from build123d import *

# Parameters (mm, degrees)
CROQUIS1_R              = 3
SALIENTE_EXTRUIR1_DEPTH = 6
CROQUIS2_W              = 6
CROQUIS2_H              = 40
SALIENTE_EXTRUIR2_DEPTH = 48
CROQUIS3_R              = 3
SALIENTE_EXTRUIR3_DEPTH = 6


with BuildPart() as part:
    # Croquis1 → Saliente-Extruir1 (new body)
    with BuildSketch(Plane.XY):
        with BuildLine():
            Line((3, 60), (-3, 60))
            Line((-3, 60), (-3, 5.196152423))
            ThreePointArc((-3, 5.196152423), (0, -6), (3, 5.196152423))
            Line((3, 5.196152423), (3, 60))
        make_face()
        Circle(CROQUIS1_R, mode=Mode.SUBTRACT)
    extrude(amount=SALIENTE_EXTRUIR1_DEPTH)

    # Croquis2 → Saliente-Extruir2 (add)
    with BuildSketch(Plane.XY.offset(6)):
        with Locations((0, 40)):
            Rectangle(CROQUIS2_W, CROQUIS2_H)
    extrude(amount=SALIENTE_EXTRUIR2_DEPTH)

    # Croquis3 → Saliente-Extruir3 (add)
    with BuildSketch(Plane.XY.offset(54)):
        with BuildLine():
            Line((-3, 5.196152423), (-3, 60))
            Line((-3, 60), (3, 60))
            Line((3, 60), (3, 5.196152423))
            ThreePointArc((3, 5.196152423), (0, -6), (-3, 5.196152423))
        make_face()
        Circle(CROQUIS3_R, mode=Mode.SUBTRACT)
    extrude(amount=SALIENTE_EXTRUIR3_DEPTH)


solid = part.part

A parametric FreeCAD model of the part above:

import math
import FreeCAD as App
import Part
import Sketcher

doc = App.newDocument("Part")
body = doc.addObject("PartDesign::Body", "Body")

sketch1 = body.newObject("Sketcher::SketchObject", "Sketch")
sketch1.AttachmentSupport = (doc.getObject("XY_Plane"), [""])
sketch1.MapMode = "FlatFace"
sketch1.addGeometry(Part.LineSegment(App.Vector(3, 60, 0), App.Vector(-3, 60, 0)), False)
sketch1.addGeometry(Part.LineSegment(App.Vector(-3, 60, 0), App.Vector(-3, 5.196152, 0)), False)
sketch1.addGeometry(Part.ArcOfCircle(Part.Circle(App.Vector(0, 0, 0), App.Vector(0, 0, 1), 6), math.radians(120), math.radians(420)), False)
sketch1.addGeometry(Part.LineSegment(App.Vector(3, 5.196152, 0), App.Vector(3, 60, 0)), False)
sketch1.addGeometry(Part.Circle(App.Vector(0, 0, 0), App.Vector(0, 0, 1), 3), False)
sketch1.addConstraint(Sketcher.Constraint("Coincident", 0, 2, 1, 1))
sketch1.addConstraint(Sketcher.Constraint("Coincident", 1, 2, 2, 1))
sketch1.addConstraint(Sketcher.Constraint("Coincident", 2, 2, 3, 1))
sketch1.addConstraint(Sketcher.Constraint("Coincident", 3, 2, 0, 1))
sketch1.addConstraint(Sketcher.Constraint("Horizontal", 0))
sketch1.addConstraint(Sketcher.Constraint("Vertical", 1))
sketch1.addConstraint(Sketcher.Constraint("Vertical", 3))
sketch1.addConstraint(Sketcher.Constraint("Coincident", 2, 3, -1, 1))
sketch1.addConstraint(Sketcher.Constraint("Coincident", 4, 3, -1, 1))
sketch1.addConstraint(Sketcher.Constraint("Horizontal", 1, 2, 2, 2))
sketch1.addConstraint(Sketcher.Constraint("Diameter", 4, 6.0))
sketch1.addConstraint(Sketcher.Constraint("Radius", 2, 6.0))
sketch1.addConstraint(Sketcher.Constraint("DistanceX", 0, 2, 0, 1, 6.0))
sketch1.addConstraint(Sketcher.Constraint("DistanceY", -1, 1, 0, 2, 60.0))
pad1 = body.newObject("PartDesign::Pad", "Pad")
pad1.Profile = sketch1
pad1.Length = 6

sketch2 = body.newObject("Sketcher::SketchObject", "Sketch001")
sketch2.AttachmentSupport = (doc.getObject("XY_Plane"), [""])
sketch2.MapMode = "FlatFace"
sketch2.AttachmentOffset = App.Placement(App.Vector(0, 0, 6), App.Rotation())
sketch2.addGeometry(Part.LineSegment(App.Vector(-3, 60, 0), App.Vector(-3, 20, 0)), False)
sketch2.addGeometry(Part.LineSegment(App.Vector(-3, 20, 0), App.Vector(3, 20, 0)), False)
sketch2.addGeometry(Part.LineSegment(App.Vector(3, 20, 0), App.Vector(3, 60, 0)), False)
sketch2.addGeometry(Part.LineSegment(App.Vector(3, 60, 0), App.Vector(-3, 60, 0)), False)
sketch2.addConstraint(Sketcher.Constraint("Coincident", 0, 2, 1, 1))
sketch2.addConstraint(Sketcher.Constraint("Coincident", 1, 2, 2, 1))
sketch2.addConstraint(Sketcher.Constraint("Coincident", 2, 2, 3, 1))
sketch2.addConstraint(Sketcher.Constraint("Coincident", 3, 2, 0, 1))
sketch2.addConstraint(Sketcher.Constraint("Vertical", 0))
sketch2.addConstraint(Sketcher.Constraint("Horizontal", 1))
sketch2.addConstraint(Sketcher.Constraint("Vertical", 2))
sketch2.addConstraint(Sketcher.Constraint("Horizontal", 3))
sketch2.addConstraint(Sketcher.Constraint("DistanceX", 1, 1, 1, 2, 6.0))
sketch2.addConstraint(Sketcher.Constraint("DistanceY", 0, 2, 0, 1, 40.0))
sketch2.addConstraint(Sketcher.Constraint("DistanceX", 0, 2, -1, 1, 3.0))
sketch2.addConstraint(Sketcher.Constraint("DistanceY", -1, 1, 0, 2, 20.0))
pad2 = body.newObject("PartDesign::Pad", "Pad001")
pad2.Profile = sketch2
pad2.Length = 48

sketch3 = body.newObject("Sketcher::SketchObject", "Sketch002")
sketch3.AttachmentSupport = (doc.getObject("XY_Plane"), [""])
sketch3.MapMode = "FlatFace"
sketch3.AttachmentOffset = App.Placement(App.Vector(0, 0, 54), App.Rotation())
sketch3.addGeometry(Part.LineSegment(App.Vector(-3, 60, 0), App.Vector(-3, 5.196152, 0)), False)
sketch3.addGeometry(Part.ArcOfCircle(Part.Circle(App.Vector(0, 0, 0), App.Vector(0, 0, 1), 6), math.radians(120), math.radians(420)), False)
sketch3.addGeometry(Part.LineSegment(App.Vector(3, 5.196152, 0), App.Vector(3, 60, 0)), False)
sketch3.addGeometry(Part.LineSegment(App.Vector(3, 60, 0), App.Vector(-3, 60, 0)), False)
sketch3.addGeometry(Part.Circle(App.Vector(0, 0, 0), App.Vector(0, 0, 1), 3), False)
sketch3.addConstraint(Sketcher.Constraint("Coincident", 0, 2, 1, 1))
sketch3.addConstraint(Sketcher.Constraint("Coincident", 1, 2, 2, 1))
sketch3.addConstraint(Sketcher.Constraint("Coincident", 2, 2, 3, 1))
sketch3.addConstraint(Sketcher.Constraint("Coincident", 3, 2, 0, 1))
sketch3.addConstraint(Sketcher.Constraint("Vertical", 0))
sketch3.addConstraint(Sketcher.Constraint("Vertical", 2))
sketch3.addConstraint(Sketcher.Constraint("Horizontal", 3))
sketch3.addConstraint(Sketcher.Constraint("Coincident", 1, 3, -1, 1))
sketch3.addConstraint(Sketcher.Constraint("Coincident", 4, 3, -1, 1))
sketch3.addConstraint(Sketcher.Constraint("Horizontal", 0, 2, 1, 2))
sketch3.addConstraint(Sketcher.Constraint("Diameter", 4, 6.0))
sketch3.addConstraint(Sketcher.Constraint("Radius", 1, 6.0))
sketch3.addConstraint(Sketcher.Constraint("DistanceX", 3, 2, 3, 1, 6.0))
sketch3.addConstraint(Sketcher.Constraint("DistanceY", -1, 1, 2, 2, 60.0))
pad3 = body.newObject("PartDesign::Pad", "Pad002")
pad3.Profile = sketch3
pad3.Length = 6

doc.recompute()
